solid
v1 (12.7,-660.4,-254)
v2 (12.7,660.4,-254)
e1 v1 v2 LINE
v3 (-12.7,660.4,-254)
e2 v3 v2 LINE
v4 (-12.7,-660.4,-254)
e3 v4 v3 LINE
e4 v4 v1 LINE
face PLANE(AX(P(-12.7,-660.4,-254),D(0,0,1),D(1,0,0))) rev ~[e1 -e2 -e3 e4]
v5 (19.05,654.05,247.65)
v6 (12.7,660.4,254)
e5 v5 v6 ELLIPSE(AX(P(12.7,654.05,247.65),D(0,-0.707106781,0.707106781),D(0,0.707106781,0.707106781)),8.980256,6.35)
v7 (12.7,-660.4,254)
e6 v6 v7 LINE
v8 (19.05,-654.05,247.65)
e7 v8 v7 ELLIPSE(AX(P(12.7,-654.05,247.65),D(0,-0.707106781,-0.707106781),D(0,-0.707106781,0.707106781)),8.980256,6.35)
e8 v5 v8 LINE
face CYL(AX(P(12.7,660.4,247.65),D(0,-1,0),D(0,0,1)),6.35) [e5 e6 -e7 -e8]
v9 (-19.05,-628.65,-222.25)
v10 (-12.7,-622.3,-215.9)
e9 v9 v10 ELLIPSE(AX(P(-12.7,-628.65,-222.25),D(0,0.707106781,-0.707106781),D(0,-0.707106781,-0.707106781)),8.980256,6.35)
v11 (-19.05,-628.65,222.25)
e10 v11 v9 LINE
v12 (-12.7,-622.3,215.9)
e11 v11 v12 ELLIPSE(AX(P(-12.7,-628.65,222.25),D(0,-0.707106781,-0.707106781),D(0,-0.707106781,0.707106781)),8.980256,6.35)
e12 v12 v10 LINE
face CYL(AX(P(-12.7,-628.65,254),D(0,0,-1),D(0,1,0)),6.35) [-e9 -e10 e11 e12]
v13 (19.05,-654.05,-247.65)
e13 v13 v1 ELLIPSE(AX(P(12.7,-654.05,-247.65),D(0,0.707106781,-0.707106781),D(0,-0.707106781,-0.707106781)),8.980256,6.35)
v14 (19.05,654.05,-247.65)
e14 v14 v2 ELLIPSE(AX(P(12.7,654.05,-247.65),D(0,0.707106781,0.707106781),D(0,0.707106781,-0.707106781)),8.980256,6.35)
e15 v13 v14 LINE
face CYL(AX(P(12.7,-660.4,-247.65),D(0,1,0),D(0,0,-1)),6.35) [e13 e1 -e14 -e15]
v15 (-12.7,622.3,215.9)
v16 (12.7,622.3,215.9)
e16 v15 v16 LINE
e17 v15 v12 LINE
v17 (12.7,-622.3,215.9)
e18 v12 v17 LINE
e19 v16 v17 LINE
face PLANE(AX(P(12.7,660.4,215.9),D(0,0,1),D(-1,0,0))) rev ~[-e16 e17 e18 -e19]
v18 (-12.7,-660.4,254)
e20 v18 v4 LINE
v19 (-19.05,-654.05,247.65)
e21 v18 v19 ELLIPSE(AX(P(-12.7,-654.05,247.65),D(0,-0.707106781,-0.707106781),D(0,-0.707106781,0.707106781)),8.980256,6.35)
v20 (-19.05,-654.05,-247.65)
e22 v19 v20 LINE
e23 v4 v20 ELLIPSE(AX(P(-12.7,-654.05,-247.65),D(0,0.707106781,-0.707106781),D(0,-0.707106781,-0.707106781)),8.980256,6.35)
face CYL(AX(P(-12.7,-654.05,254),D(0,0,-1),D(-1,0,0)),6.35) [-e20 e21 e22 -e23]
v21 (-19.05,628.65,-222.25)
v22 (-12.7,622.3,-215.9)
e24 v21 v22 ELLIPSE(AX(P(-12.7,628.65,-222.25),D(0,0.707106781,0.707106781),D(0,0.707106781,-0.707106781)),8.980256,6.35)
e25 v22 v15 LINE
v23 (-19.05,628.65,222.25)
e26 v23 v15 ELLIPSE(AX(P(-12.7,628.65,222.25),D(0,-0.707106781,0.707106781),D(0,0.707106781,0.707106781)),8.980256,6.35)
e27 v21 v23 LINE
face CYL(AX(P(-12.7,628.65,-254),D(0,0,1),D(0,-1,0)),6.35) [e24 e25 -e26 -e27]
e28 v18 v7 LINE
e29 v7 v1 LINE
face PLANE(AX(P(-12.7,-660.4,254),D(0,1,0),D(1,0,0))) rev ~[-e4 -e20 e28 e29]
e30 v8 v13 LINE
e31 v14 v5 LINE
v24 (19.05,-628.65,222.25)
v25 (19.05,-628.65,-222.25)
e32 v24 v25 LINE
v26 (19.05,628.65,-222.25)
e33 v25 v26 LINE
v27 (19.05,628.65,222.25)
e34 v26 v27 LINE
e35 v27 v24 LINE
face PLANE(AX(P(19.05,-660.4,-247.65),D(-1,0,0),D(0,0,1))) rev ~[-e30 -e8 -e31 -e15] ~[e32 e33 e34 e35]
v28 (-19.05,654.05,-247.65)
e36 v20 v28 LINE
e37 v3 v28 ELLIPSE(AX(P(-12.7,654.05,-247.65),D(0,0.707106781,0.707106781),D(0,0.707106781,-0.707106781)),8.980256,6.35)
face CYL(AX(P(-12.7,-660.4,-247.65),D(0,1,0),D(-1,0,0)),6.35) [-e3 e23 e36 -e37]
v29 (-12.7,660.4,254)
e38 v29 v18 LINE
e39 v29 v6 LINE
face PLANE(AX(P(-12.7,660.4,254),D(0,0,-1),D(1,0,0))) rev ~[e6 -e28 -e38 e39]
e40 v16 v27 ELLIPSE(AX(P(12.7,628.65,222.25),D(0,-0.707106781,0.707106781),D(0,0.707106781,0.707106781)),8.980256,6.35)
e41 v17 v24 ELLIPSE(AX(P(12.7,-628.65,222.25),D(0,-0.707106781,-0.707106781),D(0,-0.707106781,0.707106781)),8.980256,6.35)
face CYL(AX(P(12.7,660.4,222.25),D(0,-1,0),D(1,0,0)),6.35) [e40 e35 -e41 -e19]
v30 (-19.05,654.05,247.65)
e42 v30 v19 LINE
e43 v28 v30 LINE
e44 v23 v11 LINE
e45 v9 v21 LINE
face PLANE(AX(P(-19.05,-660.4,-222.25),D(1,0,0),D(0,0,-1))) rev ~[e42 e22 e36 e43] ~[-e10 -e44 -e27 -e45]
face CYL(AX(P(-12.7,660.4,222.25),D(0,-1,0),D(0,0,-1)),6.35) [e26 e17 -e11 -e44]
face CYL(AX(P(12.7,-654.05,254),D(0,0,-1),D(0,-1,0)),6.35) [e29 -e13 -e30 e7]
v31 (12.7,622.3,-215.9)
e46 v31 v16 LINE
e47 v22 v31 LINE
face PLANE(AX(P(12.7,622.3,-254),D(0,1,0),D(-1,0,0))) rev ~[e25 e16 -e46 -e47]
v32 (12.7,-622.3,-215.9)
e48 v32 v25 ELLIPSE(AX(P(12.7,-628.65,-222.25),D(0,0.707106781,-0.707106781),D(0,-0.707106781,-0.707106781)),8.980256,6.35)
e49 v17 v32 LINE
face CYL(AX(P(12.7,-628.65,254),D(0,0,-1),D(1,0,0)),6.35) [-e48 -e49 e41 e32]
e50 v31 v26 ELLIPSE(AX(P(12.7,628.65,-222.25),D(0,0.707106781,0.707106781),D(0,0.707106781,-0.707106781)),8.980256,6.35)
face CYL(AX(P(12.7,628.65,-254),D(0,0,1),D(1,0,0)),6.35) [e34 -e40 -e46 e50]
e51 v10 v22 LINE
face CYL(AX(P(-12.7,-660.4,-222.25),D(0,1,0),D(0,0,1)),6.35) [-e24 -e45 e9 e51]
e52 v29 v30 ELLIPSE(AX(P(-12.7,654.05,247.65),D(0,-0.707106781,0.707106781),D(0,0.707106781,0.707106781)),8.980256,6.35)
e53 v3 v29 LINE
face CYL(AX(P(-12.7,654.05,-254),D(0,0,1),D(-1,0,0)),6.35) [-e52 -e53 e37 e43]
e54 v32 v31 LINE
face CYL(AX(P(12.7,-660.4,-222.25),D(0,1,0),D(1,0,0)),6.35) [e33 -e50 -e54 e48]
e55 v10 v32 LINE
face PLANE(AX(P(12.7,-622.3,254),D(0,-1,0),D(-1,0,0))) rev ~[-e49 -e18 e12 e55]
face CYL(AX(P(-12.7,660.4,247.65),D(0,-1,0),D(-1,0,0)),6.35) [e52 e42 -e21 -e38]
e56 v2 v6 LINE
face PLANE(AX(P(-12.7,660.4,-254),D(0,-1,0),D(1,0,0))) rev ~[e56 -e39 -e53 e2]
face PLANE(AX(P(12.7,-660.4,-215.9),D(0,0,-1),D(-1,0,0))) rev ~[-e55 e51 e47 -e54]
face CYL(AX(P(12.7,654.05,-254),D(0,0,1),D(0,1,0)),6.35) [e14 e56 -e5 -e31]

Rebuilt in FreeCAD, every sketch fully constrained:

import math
import FreeCAD as App
import Part
import Sketcher
from FreeCAD import Vector
Q = App.Units.Quantity


def add_polygon(sketch, points):
    """Adds a closed chain of lines whose ends are joined by coincident constraints."""
    first, n = sketch.GeometryCount, len(points)
    for a, b in zip(points, points[1:] + points[:1]):
        sketch.addGeometry(Part.LineSegment(App.Vector(*a, 0), App.Vector(*b, 0)), False)
    for i in range(n):
        sketch.addConstraint(Sketcher.Constraint("Coincident", first + i, 2, first + (i + 1) % n, 1))

doc = App.newDocument("Part")
body = doc.addObject("PartDesign::Body", "Body")

# Sketch on XZ plane
sketch1 = doc.addObject("Sketcher::SketchObject", "Sketch")
body.addObject(sketch1)
sketch1.AttachmentSupport = (doc.XZ_Plane, [""])
sketch1.MapMode = "FlatFace"
sketch1.addGeometry([
    Part.LineSegment(Vector(-13, -254, 0), Vector(13, -254, 0)),  # 0
    Part.ArcOfCircle(Part.Circle(Vector(13, -248, 0), Vector(0, 0, 1), 6), math.radians(-90), math.radians(0)),  # 1
    Part.LineSegment(Vector(19, -248, 0), Vector(19, -222, 0)),  # 2
    Part.ArcOfCircle(Part.Circle(Vector(13, -222, 0), Vector(0, 0, 1), 6), math.radians(0), math.radians(90)),  # 3
    Part.LineSegment(Vector(13, -216, 0), Vector(-13, -216, 0)),  # 4
    Part.ArcOfCircle(Part.Circle(Vector(-13, -222, 0), Vector(0, 0, 1), 6), math.radians(90), math.radians(180)),  # 5
    Part.LineSegment(Vector(-19, -222, 0), Vector(-19, -248, 0)),  # 6
    Part.ArcOfCircle(Part.Circle(Vector(-13, -248, 0), Vector(0, 0, 1), 6), math.radians(180), math.radians(270)),  # 7
], False)
sketch1.addConstraint([
    Sketcher.Constraint("Tangent", 0, 2, 1, 1),
    Sketcher.Constraint("Tangent", 1, 2, 2, 1),
    Sketcher.Constraint("Tangent", 2, 2, 3, 1),
    Sketcher.Constraint("Tangent", 3, 2, 4, 1),
    Sketcher.Constraint("Tangent", 4, 2, 5, 1),
    Sketcher.Constraint("Tangent", 5, 2, 6, 1),
    Sketcher.Constraint("Tangent", 6, 2, 7, 1),
    Sketcher.Constraint("Tangent", 7, 2, 0, 1),
    Sketcher.Constraint("Horizontal", 0),
    Sketcher.Constraint("Vertical", 2),
    Sketcher.Constraint("Horizontal", 4),
    Sketcher.Constraint("Vertical", 6),
    Sketcher.Constraint("Equal", 1, 3),
    Sketcher.Constraint("Equal", 3, 5),
    Sketcher.Constraint("Equal", 5, 7),
    Sketcher.Constraint("Equal", 4, 2),
    Sketcher.Constraint("DistanceX", 0, 1, 0, 2, Q("1 in")),
    Sketcher.Constraint("Radius", 1, Q("0.25 in")),
    Sketcher.Constraint("DistanceY", 0, 2, -1, 1, Q("10 in")),
    Sketcher.Constraint("DistanceX", -1, 1, 1, 3, Q("0.5 in")),
])

# Sketch on YZ plane
sketch2 = doc.addObject("Sketcher::SketchObject", "Sketch001")
body.addObject(sketch2)
sketch2.AttachmentSupport = (doc.YZ_Plane, [""])
sketch2.MapMode = "FlatFace"
add_polygon(sketch2, [(-660, -254), (660, -254), (660, 254), (-660, 254)])  # lines 0-3
sketch2.addConstraint([
    Sketcher.Constraint("Horizontal", 0),
    Sketcher.Constraint("Vertical", 1),
    Sketcher.Constraint("Horizontal", 2),
    Sketcher.Constraint("Vertical", 3),
    Sketcher.Constraint("Symmetric", 0, 2, 2, 2, -1, 1),
    Sketcher.Constraint("DistanceX", 0, 1, 0, 2, Q("52 in")),
    Sketcher.Constraint("DistanceY", 1, 1, 1, 2, Q("20 in")),
])
doc.recompute()

additivepipe = doc.addObject("PartDesign::AdditivePipe", "AdditivePipe")
body.addObject(additivepipe)
additivepipe.Profile = sketch1
additivepipe.Spine = (sketch2, ["Edge1", "Edge2", "Edge3", "Edge4"])
additivepipe.Transition = "Right corner"

doc.recompute()
